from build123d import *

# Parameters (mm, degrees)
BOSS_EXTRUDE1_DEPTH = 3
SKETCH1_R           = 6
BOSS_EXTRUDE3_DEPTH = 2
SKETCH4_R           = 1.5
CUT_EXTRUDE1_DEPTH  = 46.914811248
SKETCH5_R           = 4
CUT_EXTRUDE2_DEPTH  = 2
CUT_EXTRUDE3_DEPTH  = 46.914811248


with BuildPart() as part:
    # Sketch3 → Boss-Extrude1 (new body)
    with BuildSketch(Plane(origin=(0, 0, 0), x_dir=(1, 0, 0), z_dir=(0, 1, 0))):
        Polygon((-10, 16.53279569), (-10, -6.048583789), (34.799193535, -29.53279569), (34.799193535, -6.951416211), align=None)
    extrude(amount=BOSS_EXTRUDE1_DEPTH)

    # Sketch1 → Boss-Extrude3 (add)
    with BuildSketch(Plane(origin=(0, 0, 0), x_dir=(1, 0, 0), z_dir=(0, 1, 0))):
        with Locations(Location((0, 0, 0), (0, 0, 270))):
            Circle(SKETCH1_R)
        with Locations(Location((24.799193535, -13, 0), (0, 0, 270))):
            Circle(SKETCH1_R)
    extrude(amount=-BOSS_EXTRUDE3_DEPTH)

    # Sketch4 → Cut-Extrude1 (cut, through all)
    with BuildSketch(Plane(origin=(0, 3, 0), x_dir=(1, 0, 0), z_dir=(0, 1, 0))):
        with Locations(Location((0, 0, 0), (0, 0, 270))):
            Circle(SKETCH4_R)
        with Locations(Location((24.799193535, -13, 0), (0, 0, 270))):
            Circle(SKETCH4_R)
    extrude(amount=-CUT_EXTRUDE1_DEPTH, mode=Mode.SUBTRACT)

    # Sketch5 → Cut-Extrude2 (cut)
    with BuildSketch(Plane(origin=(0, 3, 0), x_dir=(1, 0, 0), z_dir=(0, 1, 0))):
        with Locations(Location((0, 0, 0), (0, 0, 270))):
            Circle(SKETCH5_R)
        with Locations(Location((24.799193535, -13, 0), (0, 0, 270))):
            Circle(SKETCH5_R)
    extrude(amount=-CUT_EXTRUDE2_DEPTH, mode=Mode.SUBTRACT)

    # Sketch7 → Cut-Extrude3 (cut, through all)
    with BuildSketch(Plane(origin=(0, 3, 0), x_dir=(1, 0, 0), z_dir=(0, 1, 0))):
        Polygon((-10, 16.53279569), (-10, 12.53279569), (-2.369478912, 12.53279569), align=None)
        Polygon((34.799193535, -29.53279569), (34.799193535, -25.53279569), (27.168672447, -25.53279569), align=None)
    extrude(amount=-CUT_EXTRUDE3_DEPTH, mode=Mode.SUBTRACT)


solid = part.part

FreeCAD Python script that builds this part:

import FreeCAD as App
import Part
import Sketcher

V = App.Vector
Q = App.Units.Quantity

doc = App.newDocument("Part")
body = doc.addObject("PartDesign::Body", "Body")

sketch1 = body.newObject("Sketcher::SketchObject", "Sketch")
sketch1.AttachmentSupport = (doc.getObject("XZ_Plane"), [""])
sketch1.MapMode = "FlatFace"
sketch1.addGeometry([
    Part.LineSegment(V(-10, -17, 0), V(-10, 6, 0)),
    Part.LineSegment(V(-10, 6, 0), V(35, 30, 0)),
    Part.LineSegment(V(35, 30, 0), V(35, 7, 0)),
    Part.LineSegment(V(35, 7, 0), V(-10, -17, 0)),
], False)
sketch1.addConstraint([
    Sketcher.Constraint("Coincident", 0, 2, 1, 1),
    Sketcher.Constraint("Coincident", 1, 2, 2, 1),
    Sketcher.Constraint("Coincident", 2, 2, 3, 1),
    Sketcher.Constraint("Coincident", 3, 2, 0, 1),
    Sketcher.Constraint("Vertical", 0),
    Sketcher.Constraint("Vertical", 2),
    Sketcher.Constraint("Parallel", 1, 3),
    Sketcher.Constraint("DistanceX", 0, 2, -1, 1, Q("10 mm")),
    Sketcher.Constraint("DistanceY", 0, 1, 0, 2, Q("22.581379 mm")),
    Sketcher.Constraint("Distance", 1, Q("50.581379 mm")),
    Sketcher.Constraint("DistanceY", 0, 2, 1, 2, Q("23.484212 mm")),
    Sketcher.Constraint("DistanceY", -1, 1, 0, 2, Q("6.048584 mm")),
])
pad1 = body.newObject("PartDesign::Pad", "Pad")
pad1.Profile = sketch1
pad1.Length = 3
pad1.Reversed = True

sketch2 = body.newObject("Sketcher::SketchObject", "Sketch001")
sketch2.AttachmentSupport = (doc.getObject("XZ_Plane"), [""])
sketch2.MapMode = "FlatFace"
sketch2.addGeometry([
    Part.Circle(V(0, 0, 0), V(0, 0, 1), 6),
    Part.Circle(V(25, 13, 0), V(0, 0, 1), 6),
], False)
sketch2.addConstraint([
    Sketcher.Constraint("Coincident", 0, 3, -1, 1),
    Sketcher.Constraint("Equal", 0, 1),
    Sketcher.Constraint("Diameter", 0, Q("12 mm")),
    Sketcher.Constraint("DistanceY", -1, 1, 1, 3, Q("13 mm")),
    Sketcher.Constraint("DistanceX", -1, 1, 1, 3, Q("24.799194 mm")),
])
pad2 = body.newObject("PartDesign::Pad", "Pad001")
pad2.Profile = sketch2
pad2.Length = 2

sketch3 = body.newObject("Sketcher::SketchObject", "Sketch002")
sketch3.AttachmentSupport = (doc.getObject("XZ_Plane"), [""])
sketch3.MapMode = "FlatFace"
sketch3.AttachmentOffset = App.Placement(V(0, 0, -3), App.Rotation())
sketch3.addGeometry([
    Part.Circle(V(0, 0, 0), V(0, 0, 1), 1.5),
    Part.Circle(V(24.8, 13, 0), V(0, 0, 1), 1.5),
], False)
sketch3.addConstraint([
    Sketcher.Constraint("Coincident", 0, 3, -1, 1),
    Sketcher.Constraint("Equal", 0, 1),
    Sketcher.Constraint("Diameter", 0, Q("3 mm")),
    Sketcher.Constraint("DistanceY", -1, 1, 1, 3, Q("13 mm")),
    Sketcher.Constraint("DistanceX", -1, 1, 1, 3, Q("24.799194 mm")),
])
pocket1 = body.newObject("PartDesign::Pocket", "Pocket")
pocket1.Profile = sketch3
pocket1.Type = "ThroughAll"
pocket1.Reversed = True

sketch4 = body.newObject("Sketcher::SketchObject", "Sketch003")
sketch4.AttachmentSupport = (doc.getObject("XZ_Plane"), [""])
sketch4.MapMode = "FlatFace"
sketch4.AttachmentOffset = App.Placement(V(0, 0, -3), App.Rotation())
sketch4.addGeometry([
    Part.Circle(V(0, 0, 0), V(0, 0, 1), 4),
    Part.Circle(V(24.8, 13, 0), V(0, 0, 1), 4),
], False)
sketch4.addConstraint([
    Sketcher.Constraint("Coincident", 0, 3, -1, 1),
    Sketcher.Constraint("Equal", 0, 1),
    Sketcher.Constraint("Diameter", 0, Q("8 mm")),
    Sketcher.Constraint("DistanceY", -1, 1, 1, 3, Q("13 mm")),
    Sketcher.Constraint("DistanceX", -1, 1, 1, 3, Q("24.799194 mm")),
])
pocket2 = body.newObject("PartDesign::Pocket", "Pocket001")
pocket2.Profile = sketch4
pocket2.Length = 2
pocket2.Reversed = True

sketch5 = body.newObject("Sketcher::SketchObject", "Sketch004")
sketch5.AttachmentSupport = (doc.getObject("XZ_Plane"), [""])
sketch5.MapMode = "FlatFace"
sketch5.AttachmentOffset = App.Placement(V(0, 0, -3), App.Rotation())
sketch5.addGeometry([
    Part.LineSegment(V(-10, -16.5, 0), V(-10, -12.5, 0)),
    Part.LineSegment(V(-10, -12.5, 0), V(-2.4, -12.5, 0)),
    Part.LineSegment(V(-2.4, -12.5, 0), V(-10, -16.5, 0)),
    Part.LineSegment(V(34.8, 29.5, 0), V(34.8, 25.5, 0)),
    Part.LineSegment(V(34.8, 25.5, 0), V(27.2, 25.5, 0)),
    Part.LineSegment(V(27.2, 25.5, 0), V(34.8, 29.5, 0)),
], False)
sketch5.addConstraint([
    Sketcher.Constraint("Coincident", 0, 2, 1, 1),
    Sketcher.Constraint("Coincident", 1, 2, 2, 1),
    Sketcher.Constraint("Coincident", 2, 2, 0, 1),
    Sketcher.Constraint("Coincident", 3, 2, 4, 1),
    Sketcher.Constraint("Coincident", 4, 2, 5, 1),
    Sketcher.Constraint("Coincident", 5, 2, 3, 1),
    Sketcher.Constraint("Vertical", 0),
    Sketcher.Constraint("Horizontal", 1),
    Sketcher.Constraint("Vertical", 3),
    Sketcher.Constraint("Horizontal", 4),
    Sketcher.Constraint("Parallel", 2, 5),
    Sketcher.Constraint("Equal", 1, 4),
    Sketcher.Constraint("DistanceY", 0, 1, 0, 2, Q("4 mm")),
    Sketcher.Constraint("DistanceX", 0, 2, -1, 1, Q("10 mm")),
    Sketcher.Constraint("DistanceX", 1, 1, 1, 2, Q("7.630521 mm")),
    Sketcher.Constraint("DistanceY", 1, 2, 3, 2, Q("38.065591 mm")),
    Sketcher.Constraint("DistanceX", 1, 2, 4, 2, Q("29.538151 mm")),
    Sketcher.Constraint("DistanceY", 0, 2, -1, 1, Q("12.532796 mm")),
])
pocket3 = body.newObject("PartDesign::Pocket", "Pocket002")
pocket3.Profile = sketch5
pocket3.Type = "ThroughAll"
pocket3.Reversed = True

doc.recompute()
